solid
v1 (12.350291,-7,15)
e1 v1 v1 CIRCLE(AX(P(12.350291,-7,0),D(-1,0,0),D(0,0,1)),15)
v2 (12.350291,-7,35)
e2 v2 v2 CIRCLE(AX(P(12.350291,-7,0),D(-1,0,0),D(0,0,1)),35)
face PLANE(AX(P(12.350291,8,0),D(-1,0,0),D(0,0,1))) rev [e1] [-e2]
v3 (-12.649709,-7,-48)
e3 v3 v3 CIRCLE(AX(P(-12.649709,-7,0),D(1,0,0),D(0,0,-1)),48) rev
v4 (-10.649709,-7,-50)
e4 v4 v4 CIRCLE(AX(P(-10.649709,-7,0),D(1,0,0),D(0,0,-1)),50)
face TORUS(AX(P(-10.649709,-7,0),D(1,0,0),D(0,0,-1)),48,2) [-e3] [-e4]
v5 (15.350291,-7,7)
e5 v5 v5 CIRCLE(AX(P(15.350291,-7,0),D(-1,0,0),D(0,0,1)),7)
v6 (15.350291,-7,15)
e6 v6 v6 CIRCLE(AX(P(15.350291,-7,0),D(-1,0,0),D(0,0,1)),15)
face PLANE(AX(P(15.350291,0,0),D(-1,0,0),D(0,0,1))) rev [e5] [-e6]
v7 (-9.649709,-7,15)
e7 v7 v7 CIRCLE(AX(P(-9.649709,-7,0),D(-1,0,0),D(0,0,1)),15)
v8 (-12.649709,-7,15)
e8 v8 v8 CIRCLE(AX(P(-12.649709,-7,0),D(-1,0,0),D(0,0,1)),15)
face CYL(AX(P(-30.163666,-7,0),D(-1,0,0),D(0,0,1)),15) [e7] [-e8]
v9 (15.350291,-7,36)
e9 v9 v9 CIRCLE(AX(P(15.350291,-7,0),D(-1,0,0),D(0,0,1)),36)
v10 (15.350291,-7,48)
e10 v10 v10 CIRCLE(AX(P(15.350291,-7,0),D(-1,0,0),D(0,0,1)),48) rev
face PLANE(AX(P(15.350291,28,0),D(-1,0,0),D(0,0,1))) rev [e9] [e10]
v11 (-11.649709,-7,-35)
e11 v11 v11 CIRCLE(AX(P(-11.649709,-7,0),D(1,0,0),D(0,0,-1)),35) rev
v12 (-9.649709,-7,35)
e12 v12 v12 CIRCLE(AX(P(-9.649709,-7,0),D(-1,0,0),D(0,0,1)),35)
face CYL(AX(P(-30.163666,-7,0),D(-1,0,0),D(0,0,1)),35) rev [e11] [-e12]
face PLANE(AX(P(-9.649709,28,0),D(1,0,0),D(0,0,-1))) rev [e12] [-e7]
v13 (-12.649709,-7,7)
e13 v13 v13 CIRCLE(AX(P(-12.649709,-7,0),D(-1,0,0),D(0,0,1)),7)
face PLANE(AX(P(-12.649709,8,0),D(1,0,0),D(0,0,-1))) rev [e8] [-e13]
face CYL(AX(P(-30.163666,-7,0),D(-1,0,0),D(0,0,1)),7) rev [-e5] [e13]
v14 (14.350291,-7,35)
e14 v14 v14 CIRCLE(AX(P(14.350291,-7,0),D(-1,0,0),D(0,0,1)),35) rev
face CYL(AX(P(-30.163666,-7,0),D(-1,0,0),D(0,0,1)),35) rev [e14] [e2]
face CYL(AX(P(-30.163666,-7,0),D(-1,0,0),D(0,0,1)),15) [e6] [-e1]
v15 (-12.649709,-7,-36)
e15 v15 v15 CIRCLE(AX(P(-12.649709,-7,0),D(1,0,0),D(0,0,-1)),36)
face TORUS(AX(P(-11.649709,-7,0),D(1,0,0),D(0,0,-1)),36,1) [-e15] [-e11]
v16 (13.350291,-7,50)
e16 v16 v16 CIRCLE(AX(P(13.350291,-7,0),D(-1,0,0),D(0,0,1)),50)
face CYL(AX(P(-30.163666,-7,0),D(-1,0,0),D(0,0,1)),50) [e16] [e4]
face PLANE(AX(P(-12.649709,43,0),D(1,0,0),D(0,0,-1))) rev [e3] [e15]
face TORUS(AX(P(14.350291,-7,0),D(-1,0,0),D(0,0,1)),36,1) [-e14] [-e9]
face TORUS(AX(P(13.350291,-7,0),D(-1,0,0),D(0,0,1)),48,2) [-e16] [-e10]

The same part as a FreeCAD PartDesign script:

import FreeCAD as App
import Part
import Sketcher
from FreeCAD import Vector
Q = App.Units.Quantity


def edges_at(feature, points):
    """Names of the edges that pass closest to the given points."""
    edges = feature.Shape.Edges
    near = lambda p: min(range(len(edges)), key=lambda i: edges[i].distToShape(Part.Vertex(*p))[0])
    return sorted({f"Edge{near(p) + 1}" for p in points})

doc = App.newDocument("Part")
body = doc.addObject("PartDesign::Body", "Body")

# Sketch on XY plane
sketch1 = doc.addObject("Sketcher::SketchObject", "Sketch")
body.addObject(sketch1)
sketch1.AttachmentSupport = (doc.XY_Plane, [""])
sketch1.MapMode = "FlatFace"
sketch1.addGeometry([
    Part.LineSegment(Vector(-12.649709, 0, 0), Vector(15.350291, 0, 0)),  # 0
    Part.LineSegment(Vector(15.350291, 0, 0), Vector(15.350291, 8, 0)),  # 1
    Part.LineSegment(Vector(15.350291, 8, 0), Vector(12.350291, 8, 0)),  # 2
    Part.LineSegment(Vector(12.350291, 8, 0), Vector(12.350291, 28, 0)),  # 3
    Part.LineSegment(Vector(12.350291, 28, 0), Vector(15.350291, 28, 0)),  # 4
    Part.LineSegment(Vector(15.350291, 28, 0), Vector(15.350291, 43, 0)),  # 5
    Part.LineSegment(Vector(15.350291, 43, 0), Vector(-12.649709, 43, 0)),  # 6
    Part.LineSegment(Vector(-12.649709, 43, 0), Vector(-12.649709, 28, 0)),  # 7
    Part.LineSegment(Vector(-12.649709, 28, 0), Vector(-9.649709, 28, 0)),  # 8
    Part.LineSegment(Vector(-9.649709, 28, 0), Vector(-9.649709, 8, 0)),  # 9
    Part.LineSegment(Vector(-9.649709, 8, 0), Vector(-12.649709, 8, 0)),  # 10
    Part.LineSegment(Vector(-12.649709, 8, 0), Vector(-12.649709, 0, 0)),  # 11
], False)
sketch1.addGeometry(Part.LineSegment(Vector(-12.649709, -7, 0), Vector(15.350291, -7, 0)), True)  # axis
sketch1.addConstraint([
    Sketcher.Constraint("Coincident", 0, 2, 1, 1),
    Sketcher.Constraint("Coincident", 1, 2, 2, 1),
    Sketcher.Constraint("Coincident", 2, 2, 3, 1),
    Sketcher.Constraint("Coincident", 3, 2, 4, 1),
    Sketcher.Constraint("Coincident", 4, 2, 5, 1),
    Sketcher.Constraint("Coincident", 5, 2, 6, 1),
    Sketcher.Constraint("Coincident", 6, 2, 7, 1),
    Sketcher.Constraint("Coincident", 7, 2, 8, 1),
    Sketcher.Constraint("Coincident", 8, 2, 9, 1),
    Sketcher.Constraint("Coincident", 9, 2, 10, 1),
    Sketcher.Constraint("Coincident", 10, 2, 11, 1),
    Sketcher.Constraint("Coincident", 11, 2, 0, 1),
    Sketcher.Constraint("Horizontal", 0),
    Sketcher.Constraint("Vertical", 1),
    Sketcher.Constraint("Horizontal", 2),
    Sketcher.Constraint("Vertical", 3),
    Sketcher.Constraint("Horizontal", 4),
    Sketcher.Constraint("Vertical", 5),
    Sketcher.Constraint("Horizontal", 6),
    Sketcher.Constraint("Vertical", 7),
    Sketcher.Constraint("Horizontal", 8),
    Sketcher.Constraint("Vertical", 9),
    Sketcher.Constraint("Horizontal", 10),
    Sketcher.Constraint("Vertical", 11),
    Sketcher.Constraint("Horizontal", 12),
    Sketcher.Constraint("PointOnObject", 0, 2, -1),
    Sketcher.Constraint("Horizontal", 4, 2, 7, 2),
    Sketcher.Constraint("Horizontal", 2, 2, 9, 2),
    Sketcher.Constraint("Vertical", 1, 2, 4, 2),
    Sketcher.Constraint("Vertical", 7, 2, 10, 2),
    Sketcher.Constraint("Vertical", 11, 2, 12, 1),
    Sketcher.Constraint("Vertical", 5, 2, 12, 2),
    Sketcher.Constraint("Equal", 4, 8),
    Sketcher.Constraint("DistanceX", 0, 1, 0, 2, Q("28 mm")),
    Sketcher.Constraint("DistanceX", 2, 2, 2, 1, Q("3 mm")),
    Sketcher.Constraint("DistanceY", 1, 1, 1, 2, Q("8 mm")),
    Sketcher.Constraint("DistanceY", 3, 1, 3, 2, Q("20 mm")),
    Sketcher.Constraint("DistanceY", 5, 1, 5, 2, Q("15 mm")),
    Sketcher.Constraint("DistanceY", 12, 1, -1, 1, Q("7 mm")),
    Sketcher.Constraint("DistanceX", -1, 1, 0, 2, Q("15.350291 mm")),
])
revolution = doc.addObject("PartDesign::Revolution", "Revolution")
body.addObject(revolution)
revolution.Profile = sketch1
revolution.ReferenceAxis = (sketch1, ["Axis0"])
revolution.Angle = 360
doc.recompute()

fillet = doc.addObject("PartDesign::Fillet", "Fillet")
body.addObject(fillet)
fillet.Base = (revolution, edges_at(revolution, [(15.35, -57, 0)]))
fillet.Radius = 2
doc.recompute()

fillet2 = doc.addObject("PartDesign::Fillet", "Fillet001")
body.addObject(fillet2)
fillet2.Base = (fillet, edges_at(fillet, [(-12.65, -57, 0)]))
fillet2.Radius = 2
doc.recompute()

fillet3 = doc.addObject("PartDesign::Fillet", "Fillet002")
body.addObject(fillet3)
fillet3.Base = (fillet2, edges_at(fillet2, [(-12.65, -42, 0)]))
fillet3.Radius = 1
doc.recompute()

fillet4 = doc.addObject("PartDesign::Fillet", "Fillet003")
body.addObject(fillet4)
fillet4.Base = (fillet3, edges_at(fillet3, [(15.35, -42, 0)]))
fillet4.Radius = 1

doc.recompute()
